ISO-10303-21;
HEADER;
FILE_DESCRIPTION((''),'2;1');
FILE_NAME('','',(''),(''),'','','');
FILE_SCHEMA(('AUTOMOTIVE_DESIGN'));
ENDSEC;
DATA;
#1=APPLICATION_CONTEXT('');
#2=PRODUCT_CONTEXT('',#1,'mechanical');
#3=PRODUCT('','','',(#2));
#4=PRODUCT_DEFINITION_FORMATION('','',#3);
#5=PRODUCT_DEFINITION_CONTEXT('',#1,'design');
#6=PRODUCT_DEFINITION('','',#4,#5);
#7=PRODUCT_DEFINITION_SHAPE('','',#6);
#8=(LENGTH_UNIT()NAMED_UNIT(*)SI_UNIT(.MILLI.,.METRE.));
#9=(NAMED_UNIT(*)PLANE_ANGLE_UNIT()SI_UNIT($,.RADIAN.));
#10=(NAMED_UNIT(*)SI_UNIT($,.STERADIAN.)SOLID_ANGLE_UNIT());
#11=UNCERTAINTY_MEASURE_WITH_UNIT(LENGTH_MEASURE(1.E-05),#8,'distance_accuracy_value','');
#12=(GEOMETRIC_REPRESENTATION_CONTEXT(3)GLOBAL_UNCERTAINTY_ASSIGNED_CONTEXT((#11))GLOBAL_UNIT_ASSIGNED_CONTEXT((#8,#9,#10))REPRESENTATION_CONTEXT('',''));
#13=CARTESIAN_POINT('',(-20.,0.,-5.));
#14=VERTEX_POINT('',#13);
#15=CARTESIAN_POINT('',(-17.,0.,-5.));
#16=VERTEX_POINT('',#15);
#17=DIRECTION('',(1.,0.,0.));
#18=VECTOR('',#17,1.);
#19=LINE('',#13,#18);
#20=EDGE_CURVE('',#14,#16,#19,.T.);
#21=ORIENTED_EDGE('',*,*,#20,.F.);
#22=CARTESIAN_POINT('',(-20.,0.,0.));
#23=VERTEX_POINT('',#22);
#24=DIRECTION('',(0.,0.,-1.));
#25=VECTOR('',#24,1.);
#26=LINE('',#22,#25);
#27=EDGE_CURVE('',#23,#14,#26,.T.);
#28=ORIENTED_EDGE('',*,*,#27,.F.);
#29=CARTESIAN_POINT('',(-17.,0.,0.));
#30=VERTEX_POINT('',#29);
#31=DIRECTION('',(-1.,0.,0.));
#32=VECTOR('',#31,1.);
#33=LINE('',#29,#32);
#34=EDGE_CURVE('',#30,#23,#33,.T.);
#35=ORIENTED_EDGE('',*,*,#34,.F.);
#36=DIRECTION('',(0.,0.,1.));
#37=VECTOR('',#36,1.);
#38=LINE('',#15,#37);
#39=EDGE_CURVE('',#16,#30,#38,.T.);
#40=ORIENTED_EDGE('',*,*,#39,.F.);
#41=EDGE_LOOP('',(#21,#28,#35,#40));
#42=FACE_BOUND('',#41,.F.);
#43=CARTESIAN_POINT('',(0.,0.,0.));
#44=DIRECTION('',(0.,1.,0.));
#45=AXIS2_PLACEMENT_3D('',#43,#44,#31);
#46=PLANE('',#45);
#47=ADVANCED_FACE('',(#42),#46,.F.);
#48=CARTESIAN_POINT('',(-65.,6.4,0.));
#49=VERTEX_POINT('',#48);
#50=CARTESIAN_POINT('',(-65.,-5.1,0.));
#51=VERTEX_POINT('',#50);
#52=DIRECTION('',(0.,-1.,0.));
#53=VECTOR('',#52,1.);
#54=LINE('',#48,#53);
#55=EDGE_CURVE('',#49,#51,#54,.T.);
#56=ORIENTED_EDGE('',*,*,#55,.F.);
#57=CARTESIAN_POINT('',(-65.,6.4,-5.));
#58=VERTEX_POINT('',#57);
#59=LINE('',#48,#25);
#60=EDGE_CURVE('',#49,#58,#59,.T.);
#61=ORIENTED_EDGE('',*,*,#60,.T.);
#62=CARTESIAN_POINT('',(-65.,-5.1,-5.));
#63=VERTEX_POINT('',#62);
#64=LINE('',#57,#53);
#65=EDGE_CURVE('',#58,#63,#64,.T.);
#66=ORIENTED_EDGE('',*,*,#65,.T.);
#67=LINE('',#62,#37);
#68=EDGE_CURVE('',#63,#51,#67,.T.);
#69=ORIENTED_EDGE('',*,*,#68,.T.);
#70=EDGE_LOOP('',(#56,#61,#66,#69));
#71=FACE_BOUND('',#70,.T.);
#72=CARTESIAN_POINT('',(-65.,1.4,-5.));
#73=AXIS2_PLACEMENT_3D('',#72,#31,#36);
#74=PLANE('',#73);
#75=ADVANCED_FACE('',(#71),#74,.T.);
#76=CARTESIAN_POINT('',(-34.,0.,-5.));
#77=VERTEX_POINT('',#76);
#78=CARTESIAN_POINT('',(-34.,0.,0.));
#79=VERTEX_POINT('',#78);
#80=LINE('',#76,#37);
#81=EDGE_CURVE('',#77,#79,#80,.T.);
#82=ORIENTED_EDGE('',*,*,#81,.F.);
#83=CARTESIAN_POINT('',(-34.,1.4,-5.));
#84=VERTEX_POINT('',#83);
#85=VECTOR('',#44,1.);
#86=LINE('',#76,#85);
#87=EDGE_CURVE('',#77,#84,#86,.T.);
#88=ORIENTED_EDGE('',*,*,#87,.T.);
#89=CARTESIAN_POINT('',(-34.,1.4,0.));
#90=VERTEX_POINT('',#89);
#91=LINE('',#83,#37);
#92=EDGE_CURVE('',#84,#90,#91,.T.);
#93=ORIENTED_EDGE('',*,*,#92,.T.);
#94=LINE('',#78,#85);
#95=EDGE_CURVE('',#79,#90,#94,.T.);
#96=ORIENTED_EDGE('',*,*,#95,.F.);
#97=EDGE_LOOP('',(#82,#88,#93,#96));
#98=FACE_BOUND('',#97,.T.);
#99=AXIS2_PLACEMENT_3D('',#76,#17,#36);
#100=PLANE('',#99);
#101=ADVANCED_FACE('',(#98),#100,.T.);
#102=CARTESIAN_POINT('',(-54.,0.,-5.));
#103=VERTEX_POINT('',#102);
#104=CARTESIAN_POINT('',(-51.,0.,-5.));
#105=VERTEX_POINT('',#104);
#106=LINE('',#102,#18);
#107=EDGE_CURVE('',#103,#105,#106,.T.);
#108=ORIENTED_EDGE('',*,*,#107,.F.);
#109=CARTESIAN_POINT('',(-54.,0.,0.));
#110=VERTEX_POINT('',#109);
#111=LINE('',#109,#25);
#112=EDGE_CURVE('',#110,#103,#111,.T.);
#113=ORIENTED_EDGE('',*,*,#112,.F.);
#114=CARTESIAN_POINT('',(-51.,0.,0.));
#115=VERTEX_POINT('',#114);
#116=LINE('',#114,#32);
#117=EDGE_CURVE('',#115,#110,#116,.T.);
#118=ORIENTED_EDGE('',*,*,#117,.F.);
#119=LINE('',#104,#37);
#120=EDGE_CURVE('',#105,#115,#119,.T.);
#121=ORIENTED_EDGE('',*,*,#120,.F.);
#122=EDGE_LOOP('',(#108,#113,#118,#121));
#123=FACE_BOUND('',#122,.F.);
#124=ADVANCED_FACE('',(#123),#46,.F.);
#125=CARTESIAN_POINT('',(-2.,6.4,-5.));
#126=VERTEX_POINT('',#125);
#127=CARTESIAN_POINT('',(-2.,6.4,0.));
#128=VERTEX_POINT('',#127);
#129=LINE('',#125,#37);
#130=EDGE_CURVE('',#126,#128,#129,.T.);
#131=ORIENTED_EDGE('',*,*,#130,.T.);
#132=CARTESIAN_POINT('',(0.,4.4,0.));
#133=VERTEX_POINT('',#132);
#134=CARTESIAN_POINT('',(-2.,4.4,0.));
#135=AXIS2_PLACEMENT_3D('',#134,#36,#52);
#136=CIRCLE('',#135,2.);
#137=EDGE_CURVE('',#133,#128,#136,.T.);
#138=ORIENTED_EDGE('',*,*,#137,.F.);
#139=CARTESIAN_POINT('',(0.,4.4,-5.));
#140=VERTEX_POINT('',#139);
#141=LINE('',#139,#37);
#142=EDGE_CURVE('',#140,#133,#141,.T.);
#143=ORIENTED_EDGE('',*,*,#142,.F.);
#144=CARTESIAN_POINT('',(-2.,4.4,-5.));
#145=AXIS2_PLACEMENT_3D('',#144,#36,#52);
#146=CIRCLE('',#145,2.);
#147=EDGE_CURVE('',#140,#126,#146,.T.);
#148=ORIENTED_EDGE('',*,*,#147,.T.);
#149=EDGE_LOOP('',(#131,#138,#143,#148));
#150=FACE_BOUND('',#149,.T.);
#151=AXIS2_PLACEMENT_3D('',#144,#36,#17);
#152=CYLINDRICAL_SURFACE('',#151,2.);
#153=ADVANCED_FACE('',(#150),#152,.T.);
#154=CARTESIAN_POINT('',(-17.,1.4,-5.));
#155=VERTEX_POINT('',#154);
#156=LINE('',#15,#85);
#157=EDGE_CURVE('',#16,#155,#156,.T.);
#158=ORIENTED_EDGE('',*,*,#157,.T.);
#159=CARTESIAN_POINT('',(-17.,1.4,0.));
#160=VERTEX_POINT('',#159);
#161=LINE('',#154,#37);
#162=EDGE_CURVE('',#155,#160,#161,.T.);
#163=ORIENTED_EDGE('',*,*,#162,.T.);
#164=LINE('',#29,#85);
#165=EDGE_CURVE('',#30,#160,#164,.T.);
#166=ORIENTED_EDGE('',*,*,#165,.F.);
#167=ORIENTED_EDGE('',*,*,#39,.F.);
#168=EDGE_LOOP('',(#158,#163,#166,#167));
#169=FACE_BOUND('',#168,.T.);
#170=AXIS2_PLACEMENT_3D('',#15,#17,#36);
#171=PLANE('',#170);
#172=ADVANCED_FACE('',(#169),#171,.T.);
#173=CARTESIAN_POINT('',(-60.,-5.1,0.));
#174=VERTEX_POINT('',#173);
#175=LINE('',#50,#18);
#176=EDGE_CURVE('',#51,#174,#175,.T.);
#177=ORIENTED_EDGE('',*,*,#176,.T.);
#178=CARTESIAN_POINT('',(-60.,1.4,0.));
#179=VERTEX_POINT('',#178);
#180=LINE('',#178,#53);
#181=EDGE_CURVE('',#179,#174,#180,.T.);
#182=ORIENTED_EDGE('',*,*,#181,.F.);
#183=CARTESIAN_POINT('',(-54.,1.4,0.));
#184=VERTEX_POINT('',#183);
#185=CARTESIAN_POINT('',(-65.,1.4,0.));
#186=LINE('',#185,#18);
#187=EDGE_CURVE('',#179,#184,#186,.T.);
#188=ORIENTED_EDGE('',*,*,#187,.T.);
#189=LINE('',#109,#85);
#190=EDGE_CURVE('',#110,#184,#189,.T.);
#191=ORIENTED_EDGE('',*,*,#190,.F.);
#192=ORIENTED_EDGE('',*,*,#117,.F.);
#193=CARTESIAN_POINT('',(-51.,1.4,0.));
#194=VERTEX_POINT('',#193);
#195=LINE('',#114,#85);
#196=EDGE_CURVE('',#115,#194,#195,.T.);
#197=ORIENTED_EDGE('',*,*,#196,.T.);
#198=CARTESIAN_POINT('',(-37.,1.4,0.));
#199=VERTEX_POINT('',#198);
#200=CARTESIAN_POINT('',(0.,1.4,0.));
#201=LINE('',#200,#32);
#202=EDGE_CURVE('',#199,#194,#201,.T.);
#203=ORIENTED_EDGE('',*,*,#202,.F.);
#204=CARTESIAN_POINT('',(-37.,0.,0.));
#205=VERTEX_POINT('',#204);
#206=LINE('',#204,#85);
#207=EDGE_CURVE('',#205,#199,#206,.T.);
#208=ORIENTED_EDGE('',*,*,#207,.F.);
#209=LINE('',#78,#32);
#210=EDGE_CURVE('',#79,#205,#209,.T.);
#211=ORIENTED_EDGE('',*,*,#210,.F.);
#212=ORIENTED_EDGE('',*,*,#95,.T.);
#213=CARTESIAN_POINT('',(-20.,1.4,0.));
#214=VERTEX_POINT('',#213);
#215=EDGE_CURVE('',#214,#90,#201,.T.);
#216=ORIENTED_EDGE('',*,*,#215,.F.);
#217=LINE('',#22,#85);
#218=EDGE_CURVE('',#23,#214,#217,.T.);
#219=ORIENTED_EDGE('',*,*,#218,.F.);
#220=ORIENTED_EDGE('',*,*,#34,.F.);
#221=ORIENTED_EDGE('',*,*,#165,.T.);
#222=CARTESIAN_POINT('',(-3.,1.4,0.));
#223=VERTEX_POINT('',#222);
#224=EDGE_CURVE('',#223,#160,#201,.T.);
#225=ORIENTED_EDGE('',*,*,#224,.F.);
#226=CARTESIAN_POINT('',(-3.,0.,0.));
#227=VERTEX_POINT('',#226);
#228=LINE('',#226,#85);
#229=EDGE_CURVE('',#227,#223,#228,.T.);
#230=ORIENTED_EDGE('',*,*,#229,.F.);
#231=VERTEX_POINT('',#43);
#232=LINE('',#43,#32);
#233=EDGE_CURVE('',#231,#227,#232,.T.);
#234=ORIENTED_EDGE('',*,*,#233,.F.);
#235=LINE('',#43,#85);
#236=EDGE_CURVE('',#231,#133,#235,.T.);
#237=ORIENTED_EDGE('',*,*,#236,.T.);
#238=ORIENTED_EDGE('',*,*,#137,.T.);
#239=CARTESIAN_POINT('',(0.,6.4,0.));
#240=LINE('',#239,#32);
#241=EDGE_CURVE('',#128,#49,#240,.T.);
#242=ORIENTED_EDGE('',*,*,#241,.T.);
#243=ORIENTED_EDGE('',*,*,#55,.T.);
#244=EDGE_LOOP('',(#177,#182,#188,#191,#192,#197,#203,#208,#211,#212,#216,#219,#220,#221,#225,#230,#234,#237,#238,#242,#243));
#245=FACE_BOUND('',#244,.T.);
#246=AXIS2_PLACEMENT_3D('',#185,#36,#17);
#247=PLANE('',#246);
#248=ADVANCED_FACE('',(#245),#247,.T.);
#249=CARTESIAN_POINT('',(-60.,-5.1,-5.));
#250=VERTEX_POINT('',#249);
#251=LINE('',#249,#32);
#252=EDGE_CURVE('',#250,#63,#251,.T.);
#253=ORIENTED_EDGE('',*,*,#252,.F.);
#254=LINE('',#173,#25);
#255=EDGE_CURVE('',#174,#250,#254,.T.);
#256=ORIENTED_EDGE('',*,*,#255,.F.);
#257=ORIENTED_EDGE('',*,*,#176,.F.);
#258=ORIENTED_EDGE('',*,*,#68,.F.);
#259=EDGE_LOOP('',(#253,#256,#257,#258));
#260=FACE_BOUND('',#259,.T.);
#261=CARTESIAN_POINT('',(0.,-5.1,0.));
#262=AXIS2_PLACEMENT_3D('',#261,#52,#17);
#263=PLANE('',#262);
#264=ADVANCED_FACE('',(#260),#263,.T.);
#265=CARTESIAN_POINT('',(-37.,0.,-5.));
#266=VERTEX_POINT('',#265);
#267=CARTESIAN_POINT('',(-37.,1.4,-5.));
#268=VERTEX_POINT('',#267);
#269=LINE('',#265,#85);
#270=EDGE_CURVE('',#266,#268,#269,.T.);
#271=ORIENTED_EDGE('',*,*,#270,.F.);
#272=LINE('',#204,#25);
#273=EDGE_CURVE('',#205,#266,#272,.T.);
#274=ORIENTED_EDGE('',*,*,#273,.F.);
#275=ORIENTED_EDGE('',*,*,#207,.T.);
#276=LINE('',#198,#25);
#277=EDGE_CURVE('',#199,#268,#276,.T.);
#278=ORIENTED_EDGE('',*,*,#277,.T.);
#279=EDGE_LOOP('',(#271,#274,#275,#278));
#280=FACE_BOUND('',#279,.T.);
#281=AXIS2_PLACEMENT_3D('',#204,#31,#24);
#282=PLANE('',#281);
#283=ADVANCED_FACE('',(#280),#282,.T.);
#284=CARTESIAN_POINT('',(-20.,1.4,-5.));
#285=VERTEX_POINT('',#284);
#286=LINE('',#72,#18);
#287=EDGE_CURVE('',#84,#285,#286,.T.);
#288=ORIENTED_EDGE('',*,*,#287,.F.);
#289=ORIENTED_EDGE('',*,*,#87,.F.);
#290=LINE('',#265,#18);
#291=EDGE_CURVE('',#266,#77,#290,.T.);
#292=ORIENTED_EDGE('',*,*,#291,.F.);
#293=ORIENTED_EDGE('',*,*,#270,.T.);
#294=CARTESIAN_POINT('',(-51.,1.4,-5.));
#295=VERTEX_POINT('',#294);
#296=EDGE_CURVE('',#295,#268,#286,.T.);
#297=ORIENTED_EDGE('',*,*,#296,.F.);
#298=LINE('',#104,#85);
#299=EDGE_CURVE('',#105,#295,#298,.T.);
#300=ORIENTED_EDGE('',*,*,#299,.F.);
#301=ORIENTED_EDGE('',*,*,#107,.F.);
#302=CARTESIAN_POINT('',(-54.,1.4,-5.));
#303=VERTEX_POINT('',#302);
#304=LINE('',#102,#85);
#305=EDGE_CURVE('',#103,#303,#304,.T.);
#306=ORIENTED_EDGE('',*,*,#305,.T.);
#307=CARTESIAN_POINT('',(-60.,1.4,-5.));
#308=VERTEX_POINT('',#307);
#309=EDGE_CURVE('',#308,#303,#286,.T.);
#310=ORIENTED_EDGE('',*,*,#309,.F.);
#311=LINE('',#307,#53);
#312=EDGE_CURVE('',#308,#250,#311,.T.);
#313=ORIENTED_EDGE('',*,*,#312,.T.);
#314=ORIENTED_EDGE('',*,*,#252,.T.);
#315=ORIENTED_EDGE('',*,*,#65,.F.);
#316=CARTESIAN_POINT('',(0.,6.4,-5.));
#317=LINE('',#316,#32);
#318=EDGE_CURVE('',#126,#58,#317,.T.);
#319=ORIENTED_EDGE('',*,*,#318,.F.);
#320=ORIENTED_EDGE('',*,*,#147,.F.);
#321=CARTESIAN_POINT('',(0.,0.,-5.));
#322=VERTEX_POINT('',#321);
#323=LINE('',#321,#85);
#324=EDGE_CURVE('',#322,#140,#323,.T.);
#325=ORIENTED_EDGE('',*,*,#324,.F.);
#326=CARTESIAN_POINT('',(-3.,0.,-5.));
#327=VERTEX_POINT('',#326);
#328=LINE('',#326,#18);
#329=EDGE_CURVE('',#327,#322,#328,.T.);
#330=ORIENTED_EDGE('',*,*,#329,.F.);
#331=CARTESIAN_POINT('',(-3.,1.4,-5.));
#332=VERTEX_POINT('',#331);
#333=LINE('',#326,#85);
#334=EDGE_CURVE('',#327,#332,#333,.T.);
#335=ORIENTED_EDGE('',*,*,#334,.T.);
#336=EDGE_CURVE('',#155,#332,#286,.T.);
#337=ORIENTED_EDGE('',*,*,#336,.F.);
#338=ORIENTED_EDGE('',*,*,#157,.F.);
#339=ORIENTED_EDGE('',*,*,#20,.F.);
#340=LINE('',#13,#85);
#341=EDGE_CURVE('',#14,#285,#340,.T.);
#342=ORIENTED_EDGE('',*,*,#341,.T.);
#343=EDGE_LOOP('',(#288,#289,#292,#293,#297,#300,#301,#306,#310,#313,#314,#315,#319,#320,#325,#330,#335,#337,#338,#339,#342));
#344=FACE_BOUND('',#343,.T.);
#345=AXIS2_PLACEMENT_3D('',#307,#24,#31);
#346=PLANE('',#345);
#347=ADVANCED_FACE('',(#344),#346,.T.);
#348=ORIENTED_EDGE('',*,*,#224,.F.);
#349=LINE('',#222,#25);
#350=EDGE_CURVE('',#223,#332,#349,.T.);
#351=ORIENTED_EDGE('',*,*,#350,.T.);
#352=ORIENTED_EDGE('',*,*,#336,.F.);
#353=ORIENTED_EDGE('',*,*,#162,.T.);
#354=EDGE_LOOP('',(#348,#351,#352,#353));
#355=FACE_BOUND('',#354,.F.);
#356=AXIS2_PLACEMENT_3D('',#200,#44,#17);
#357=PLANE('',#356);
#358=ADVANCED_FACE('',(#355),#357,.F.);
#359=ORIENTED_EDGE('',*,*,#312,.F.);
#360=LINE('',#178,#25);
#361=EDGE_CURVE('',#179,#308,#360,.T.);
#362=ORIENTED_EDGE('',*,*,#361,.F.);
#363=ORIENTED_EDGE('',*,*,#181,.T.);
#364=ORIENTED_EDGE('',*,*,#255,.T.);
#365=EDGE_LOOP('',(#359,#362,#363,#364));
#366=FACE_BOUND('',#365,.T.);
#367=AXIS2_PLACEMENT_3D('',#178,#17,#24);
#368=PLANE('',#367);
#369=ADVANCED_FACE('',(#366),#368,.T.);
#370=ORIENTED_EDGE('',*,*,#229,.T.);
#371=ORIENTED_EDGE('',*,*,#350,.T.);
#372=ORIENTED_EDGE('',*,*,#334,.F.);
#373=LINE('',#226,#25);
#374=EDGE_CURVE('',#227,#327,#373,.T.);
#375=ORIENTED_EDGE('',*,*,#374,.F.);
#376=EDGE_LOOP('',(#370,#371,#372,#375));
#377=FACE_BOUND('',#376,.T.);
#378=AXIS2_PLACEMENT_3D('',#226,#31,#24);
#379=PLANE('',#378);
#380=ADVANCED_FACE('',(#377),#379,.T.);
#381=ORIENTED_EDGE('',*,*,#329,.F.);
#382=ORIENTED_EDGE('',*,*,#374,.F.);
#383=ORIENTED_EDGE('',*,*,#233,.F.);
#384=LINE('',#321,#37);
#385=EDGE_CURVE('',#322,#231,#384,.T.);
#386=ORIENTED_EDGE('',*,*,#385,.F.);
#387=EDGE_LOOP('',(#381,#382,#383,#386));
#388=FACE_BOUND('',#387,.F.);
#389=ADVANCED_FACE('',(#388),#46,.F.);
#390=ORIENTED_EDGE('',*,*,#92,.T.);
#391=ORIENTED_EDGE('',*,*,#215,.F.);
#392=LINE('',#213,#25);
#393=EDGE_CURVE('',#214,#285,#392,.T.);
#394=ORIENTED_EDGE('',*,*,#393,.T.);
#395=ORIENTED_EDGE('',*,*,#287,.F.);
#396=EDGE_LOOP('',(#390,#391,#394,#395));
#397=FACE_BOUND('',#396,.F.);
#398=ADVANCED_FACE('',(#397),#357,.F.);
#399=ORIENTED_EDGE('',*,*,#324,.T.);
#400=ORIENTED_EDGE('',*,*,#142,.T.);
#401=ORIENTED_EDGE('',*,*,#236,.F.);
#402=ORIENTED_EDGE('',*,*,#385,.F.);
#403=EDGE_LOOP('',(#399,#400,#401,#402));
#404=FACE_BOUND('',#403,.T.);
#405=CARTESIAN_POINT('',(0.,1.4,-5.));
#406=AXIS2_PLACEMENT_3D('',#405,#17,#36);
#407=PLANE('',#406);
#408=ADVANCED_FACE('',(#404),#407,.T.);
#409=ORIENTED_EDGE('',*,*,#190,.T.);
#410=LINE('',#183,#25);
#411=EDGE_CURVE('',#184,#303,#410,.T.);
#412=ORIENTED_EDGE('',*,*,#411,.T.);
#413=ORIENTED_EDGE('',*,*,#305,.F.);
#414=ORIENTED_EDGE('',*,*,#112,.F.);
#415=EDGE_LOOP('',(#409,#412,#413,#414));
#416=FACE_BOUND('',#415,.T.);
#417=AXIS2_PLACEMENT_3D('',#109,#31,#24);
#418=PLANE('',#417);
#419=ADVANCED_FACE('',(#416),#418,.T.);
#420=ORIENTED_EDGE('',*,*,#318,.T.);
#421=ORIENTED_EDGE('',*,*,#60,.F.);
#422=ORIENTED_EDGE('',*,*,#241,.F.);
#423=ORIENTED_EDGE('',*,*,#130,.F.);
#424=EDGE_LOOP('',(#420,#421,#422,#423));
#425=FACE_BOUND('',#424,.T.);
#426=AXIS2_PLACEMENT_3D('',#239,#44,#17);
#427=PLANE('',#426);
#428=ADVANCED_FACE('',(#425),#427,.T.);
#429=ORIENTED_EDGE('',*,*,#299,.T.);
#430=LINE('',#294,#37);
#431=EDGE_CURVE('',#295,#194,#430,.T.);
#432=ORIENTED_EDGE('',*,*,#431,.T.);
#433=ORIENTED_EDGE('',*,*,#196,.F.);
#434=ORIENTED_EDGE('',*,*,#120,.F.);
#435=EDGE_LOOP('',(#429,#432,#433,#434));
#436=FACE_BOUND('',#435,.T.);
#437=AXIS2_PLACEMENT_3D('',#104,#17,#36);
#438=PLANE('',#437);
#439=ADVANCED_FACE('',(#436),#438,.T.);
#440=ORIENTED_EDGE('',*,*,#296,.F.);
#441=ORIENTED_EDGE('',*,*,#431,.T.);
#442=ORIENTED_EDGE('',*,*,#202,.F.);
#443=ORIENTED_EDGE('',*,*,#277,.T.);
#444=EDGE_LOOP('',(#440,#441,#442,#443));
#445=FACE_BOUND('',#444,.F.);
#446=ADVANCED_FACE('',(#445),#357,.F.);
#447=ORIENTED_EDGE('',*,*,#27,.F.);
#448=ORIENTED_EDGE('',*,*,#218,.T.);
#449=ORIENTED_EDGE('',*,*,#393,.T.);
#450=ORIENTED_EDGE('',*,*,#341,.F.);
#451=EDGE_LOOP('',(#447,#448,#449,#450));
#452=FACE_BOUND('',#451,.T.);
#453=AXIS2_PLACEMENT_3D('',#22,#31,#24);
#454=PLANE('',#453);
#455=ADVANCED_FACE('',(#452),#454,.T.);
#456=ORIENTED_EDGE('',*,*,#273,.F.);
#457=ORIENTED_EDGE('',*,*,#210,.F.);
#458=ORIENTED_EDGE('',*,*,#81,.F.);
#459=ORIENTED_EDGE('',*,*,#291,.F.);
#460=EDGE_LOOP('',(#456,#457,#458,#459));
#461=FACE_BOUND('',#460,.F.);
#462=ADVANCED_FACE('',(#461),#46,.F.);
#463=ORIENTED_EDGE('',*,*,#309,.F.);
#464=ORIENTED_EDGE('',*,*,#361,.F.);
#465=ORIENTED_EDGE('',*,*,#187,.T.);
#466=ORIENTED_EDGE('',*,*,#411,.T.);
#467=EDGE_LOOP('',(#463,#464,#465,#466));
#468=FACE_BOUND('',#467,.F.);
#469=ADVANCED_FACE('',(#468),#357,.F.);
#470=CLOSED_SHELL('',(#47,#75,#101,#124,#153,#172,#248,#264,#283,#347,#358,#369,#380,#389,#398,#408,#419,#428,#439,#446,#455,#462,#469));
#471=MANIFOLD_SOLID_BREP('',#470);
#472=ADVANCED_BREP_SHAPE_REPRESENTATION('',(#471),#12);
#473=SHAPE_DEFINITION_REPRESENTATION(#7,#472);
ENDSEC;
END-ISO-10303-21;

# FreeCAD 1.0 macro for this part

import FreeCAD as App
import Part
import Sketcher
Q = App.Units.Quantity


def edges_at(feature, points):
    """Names of the edges that pass closest to the given points."""
    edges = feature.Shape.Edges
    near = lambda p: min(range(len(edges)), key=lambda i: edges[i].distToShape(Part.Vertex(*p))[0])
    return sorted({f"Edge{near(p) + 1}" for p in points})


def add_polygon(sketch, points):
    """Adds a closed chain of lines whose ends are joined by coincident constraints."""
    first, n = sketch.GeometryCount, len(points)
    for a, b in zip(points, points[1:] + points[:1]):
        sketch.addGeometry(Part.LineSegment(App.Vector(*a, 0), App.Vector(*b, 0)), False)
    for i in range(n):
        sketch.addConstraint(Sketcher.Constraint("Coincident", first + i, 2, first + (i + 1) % n, 1))

doc = App.newDocument("Part")
body = doc.addObject("PartDesign::Body", "Body")
body.AllowCompound = True

# Sketch on XZ plane
sketch1 = body.newObject("Sketcher::SketchObject", "Sketch")
sketch1.AttachmentSupport = (doc.getObject("XZ_Plane"), [""])
sketch1.MapMode = "FlatFace"
add_polygon(sketch1, [(-3, 0), (0, 0), (0, -5), (-3, -5)])  # lines 0-3
add_polygon(sketch1, [(-20, 0), (-17, 0), (-17, -5), (-20, -5)])  # lines 4-7
add_polygon(sketch1, [(-37, 0), (-34, 0), (-34, -5), (-37, -5)])  # lines 8-11
add_polygon(sketch1, [(-54, 0), (-51, 0), (-51, -5), (-54, -5)])  # lines 12-15
sketch1.addConstraint([
    Sketcher.Constraint("Horizontal", 0),
    Sketcher.Constraint("Vertical", 1),
    Sketcher.Constraint("Horizontal", 2),
    Sketcher.Constraint("Vertical", 3),
    Sketcher.Constraint("Horizontal", 4),
    Sketcher.Constraint("Vertical", 5),
    Sketcher.Constraint("Horizontal", 6),
    Sketcher.Constraint("Vertical", 7),
    Sketcher.Constraint("Horizontal", 8),
    Sketcher.Constraint("Vertical", 9),
    Sketcher.Constraint("Horizontal", 10),
    Sketcher.Constraint("Vertical", 11),
    Sketcher.Constraint("Horizontal", 12),
    Sketcher.Constraint("Vertical", 13),
    Sketcher.Constraint("Horizontal", 14),
    Sketcher.Constraint("Vertical", 15),
    Sketcher.Constraint("Coincident", 0, 2, -1, 1),
    Sketcher.Constraint("PointOnObject", 4, 2, -1),
    Sketcher.Constraint("PointOnObject", 8, 2, -1),
    Sketcher.Constraint("PointOnObject", 12, 2, -1),
    Sketcher.Constraint("Horizontal", 2, 2, 5, 2),
    Sketcher.Constraint("Horizontal", 6, 2, 9, 2),
    Sketcher.Constraint("Horizontal", 10, 2, 13, 2),
    Sketcher.Constraint("Equal", 2, 4),
    Sketcher.Constraint("Equal", 6, 8),
    Sketcher.Constraint("Equal", 10, 12),
    Sketcher.Constraint("DistanceX", 0, 1, 0, 2, Q("3 mm")),
    Sketcher.Constraint("DistanceY", 1, 2, 1, 1, Q("5 mm")),
    Sketcher.Constraint("DistanceX", 4, 2, -1, 1, Q("17 mm")),
    Sketcher.Constraint("DistanceX", 8, 2, -1, 1, Q("34 mm")),
    Sketcher.Constraint("DistanceX", 12, 2, -1, 1, Q("51 mm")),
])
pad1 = body.newObject("PartDesign::Pad", "Pad")
pad1.Profile = sketch1
pad1.Length = 1.4
pad1.Reversed = True

# Sketch on XZ plane
sketch2 = body.newObject("Sketcher::SketchObject", "Sketch001")
sketch2.AttachmentSupport = (doc.getObject("XZ_Plane"), [""])
sketch2.MapMode = "FlatFace"
sketch2.AttachmentOffset = App.Placement(App.Vector(0, 0, -1.4), App.Rotation())
add_polygon(sketch2, [(-65, 0), (0, 0), (0, -5), (-65, -5)])  # lines 0-3
sketch2.addConstraint([
    Sketcher.Constraint("Horizontal", 0),
    Sketcher.Constraint("Vertical", 1),
    Sketcher.Constraint("Horizontal", 2),
    Sketcher.Constraint("Vertical", 3),
    Sketcher.Constraint("Coincident", 0, 2, -1, 1),
    Sketcher.Constraint("DistanceX", 0, 1, 0, 2, Q("65 mm")),
    Sketcher.Constraint("DistanceY", 1, 2, 1, 1, Q("5 mm")),
])
pad2 = body.newObject("PartDesign::Pad", "Pad001")
pad2.Profile = sketch2
pad2.Length = 5
pad2.Reversed = True
doc.recompute()

fillet = body.newObject("PartDesign::Fillet", "Fillet")
fillet.Base = (pad2, edges_at(pad2, [(0, 6.4, -2.5)]))
fillet.Radius = 2

# Sketch on XZ plane
sketch3 = body.newObject("Sketcher::SketchObject", "Sketch002")
sketch3.AttachmentSupport = (doc.getObject("XZ_Plane"), [""])
sketch3.MapMode = "FlatFace"
sketch3.AttachmentOffset = App.Placement(App.Vector(0, 0, -1.4), App.Rotation())
add_polygon(sketch3, [(-60, 0), (-65, 0), (-65, -5), (-60, -5)])  # lines 0-3
sketch3.addConstraint([
    Sketcher.Constraint("Horizontal", 0),
    Sketcher.Constraint("Vertical", 1),
    Sketcher.Constraint("Horizontal", 2),
    Sketcher.Constraint("Vertical", 3),
    Sketcher.Constraint("PointOnObject", 0, 2, -1),
    Sketcher.Constraint("Equal", 2, 1),
    Sketcher.Constraint("DistanceX", 0, 2, 0, 1, Q("5 mm")),
    Sketcher.Constraint("DistanceX", 0, 2, -1, 1, Q("65 mm")),
])
pad3 = body.newObject("PartDesign::Pad", "Pad002")
pad3.Profile = sketch3
pad3.Length = 6.5

doc.recompute()
